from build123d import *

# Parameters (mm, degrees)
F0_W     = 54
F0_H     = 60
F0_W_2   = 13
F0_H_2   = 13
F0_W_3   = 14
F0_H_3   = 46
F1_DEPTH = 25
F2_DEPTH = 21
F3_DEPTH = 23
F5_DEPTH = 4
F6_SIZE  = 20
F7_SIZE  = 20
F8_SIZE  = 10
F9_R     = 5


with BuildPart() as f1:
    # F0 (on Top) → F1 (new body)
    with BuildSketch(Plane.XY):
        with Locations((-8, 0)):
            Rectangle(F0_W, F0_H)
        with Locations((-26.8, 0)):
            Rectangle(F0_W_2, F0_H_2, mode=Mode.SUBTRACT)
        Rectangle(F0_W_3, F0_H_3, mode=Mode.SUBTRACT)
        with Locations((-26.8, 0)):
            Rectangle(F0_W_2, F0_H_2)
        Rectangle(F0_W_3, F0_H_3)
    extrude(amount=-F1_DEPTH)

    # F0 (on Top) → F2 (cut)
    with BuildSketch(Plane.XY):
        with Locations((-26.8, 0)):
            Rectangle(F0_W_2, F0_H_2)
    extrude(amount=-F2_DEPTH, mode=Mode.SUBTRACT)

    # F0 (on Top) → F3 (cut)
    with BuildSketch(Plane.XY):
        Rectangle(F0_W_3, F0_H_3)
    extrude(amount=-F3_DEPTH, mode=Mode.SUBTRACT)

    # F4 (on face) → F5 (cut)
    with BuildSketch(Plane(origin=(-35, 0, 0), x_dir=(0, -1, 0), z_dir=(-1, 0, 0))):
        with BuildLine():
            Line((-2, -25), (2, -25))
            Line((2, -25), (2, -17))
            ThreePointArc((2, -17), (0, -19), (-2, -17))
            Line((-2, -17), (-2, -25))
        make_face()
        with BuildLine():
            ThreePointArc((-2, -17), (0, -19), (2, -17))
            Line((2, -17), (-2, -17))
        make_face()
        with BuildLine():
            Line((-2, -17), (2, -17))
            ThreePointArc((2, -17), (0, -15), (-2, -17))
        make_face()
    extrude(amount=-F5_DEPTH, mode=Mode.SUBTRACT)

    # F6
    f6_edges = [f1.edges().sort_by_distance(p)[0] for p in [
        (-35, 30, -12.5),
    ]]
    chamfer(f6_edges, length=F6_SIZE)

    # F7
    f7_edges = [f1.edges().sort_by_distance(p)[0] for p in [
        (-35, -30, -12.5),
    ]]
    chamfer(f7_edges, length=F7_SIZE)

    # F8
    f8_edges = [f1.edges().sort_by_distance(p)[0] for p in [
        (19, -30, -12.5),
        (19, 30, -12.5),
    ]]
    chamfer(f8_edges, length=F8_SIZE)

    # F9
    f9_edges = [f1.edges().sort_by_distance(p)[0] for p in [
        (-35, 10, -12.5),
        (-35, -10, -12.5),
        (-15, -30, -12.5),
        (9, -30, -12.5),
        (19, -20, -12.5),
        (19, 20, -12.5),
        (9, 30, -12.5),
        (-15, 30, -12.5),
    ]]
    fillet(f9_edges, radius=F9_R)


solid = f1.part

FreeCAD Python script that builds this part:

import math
import FreeCAD as App
import Part
import Sketcher
Q = App.Units.Quantity


def edges_at(feature, points):
    """Names of the edges that pass closest to the given points."""
    edges = feature.Shape.Edges
    near = lambda p: min(range(len(edges)), key=lambda i: edges[i].distToShape(Part.Vertex(*p))[0])
    return sorted({f"Edge{near(p) + 1}" for p in points})


def add_polygon(sketch, points):
    """Adds a closed chain of lines whose ends are joined by coincident constraints."""
    first, n = sketch.GeometryCount, len(points)
    for a, b in zip(points, points[1:] + points[:1]):
        sketch.addGeometry(Part.LineSegment(App.Vector(*a, 0), App.Vector(*b, 0)), False)
    for i in range(n):
        sketch.addConstraint(Sketcher.Constraint("Coincident", first + i, 2, first + (i + 1) % n, 1))

doc = App.newDocument("Part")
params = doc.addObject("Spreadsheet::Sheet", "Params")
for row, (alias, value) in enumerate([
    ("sketch1_width", "54 mm"),
    ("sketch1_height", "60 mm"),
    ("pad1_length", "25 mm"),
    ("sketch2_width", "13 mm"),
    ("pocket1_length", "21 mm"),
    ("sketch3_width", "14 mm"),
    ("sketch3_height", "46 mm"),
    ("pocket2_length", "23 mm"),
    ("sketch4_radius", "2 mm"),
    ("sketch4_height", "8 mm"),
    ("pocket3_length", "4 mm"),
    ("chamfer_size", "20 mm"),
    ("chamfer2_size", "20 mm"),
    ("chamfer3_size", "10 mm"),
    ("fillet_radius", "5 mm"),
], start=1):
    params.set(f"A{row}", alias)
    params.set(f"B{row}", "=" + value)
    params.setAlias(f"B{row}", alias)

body = doc.addObject("PartDesign::Body", "Body")

# Sketch on XY plane
sketch1 = body.newObject("Sketcher::SketchObject", "Sketch")
sketch1.AttachmentSupport = (doc.getObject("XY_Plane"), [""])
sketch1.MapMode = "FlatFace"
add_polygon(sketch1, [(-35, 30), (-35, -30), (19, -30), (19, 30)])  # lines 0-3
sketch1.addConstraint([
    Sketcher.Constraint("Vertical", 0),
    Sketcher.Constraint("Horizontal", 1),
    Sketcher.Constraint("Vertical", 2),
    Sketcher.Constraint("Horizontal", 3),
    Sketcher.Constraint("DistanceX", 1, 1, 1, 2, Q("54 mm")),
    Sketcher.Constraint("DistanceY", 0, 2, 0, 1, Q("60 mm")),
    Sketcher.Constraint("DistanceX", 0, 2, -1, 1, Q("35 mm")),
    Sketcher.Constraint("DistanceY", 0, 2, -1, 1, Q("30 mm")),
])
sketch1.setExpression("Constraints[8]", "Params.sketch1_width")
sketch1.setExpression("Constraints[9]", "Params.sketch1_height")
pad1 = body.newObject("PartDesign::Pad", "Pad")
pad1.Profile = sketch1
pad1.setExpression("Length", "Params.pad1_length")
pad1.Reversed = True

# Sketch on XY plane
sketch2 = body.newObject("Sketcher::SketchObject", "Sketch001")
sketch2.AttachmentSupport = (doc.getObject("XY_Plane"), [""])
sketch2.MapMode = "FlatFace"
add_polygon(sketch2, [(-33, 6), (-33, -6), (-20, -6), (-20, 6)])  # lines 0-3
sketch2.addConstraint([
    Sketcher.Constraint("Vertical", 0),
    Sketcher.Constraint("Horizontal", 1),
    Sketcher.Constraint("Vertical", 2),
    Sketcher.Constraint("Horizontal", 3),
    Sketcher.Constraint("Equal", 3, 0),
    Sketcher.Constraint("DistanceX", 1, 1, 1, 2, Q("13 mm")),
    Sketcher.Constraint("DistanceX", 0, 2, -1, 1, Q("33.3 mm")),
    Sketcher.Constraint("DistanceY", 0, 2, -1, 1, Q("6.5 mm")),
])
sketch2.setExpression("Constraints[9]", "Params.sketch2_width")
pocket1 = body.newObject("PartDesign::Pocket", "Pocket")
pocket1.Profile = sketch2
pocket1.setExpression("Length", "Params.pocket1_length")

# Sketch on XY plane
sketch3 = body.newObject("Sketcher::SketchObject", "Sketch002")
sketch3.AttachmentSupport = (doc.getObject("XY_Plane"), [""])
sketch3.MapMode = "FlatFace"
add_polygon(sketch3, [(-7, 23), (-7, -23), (7, -23), (7, 23)])  # lines 0-3
sketch3.addConstraint([
    Sketcher.Constraint("Vertical", 0),
    Sketcher.Constraint("Horizontal", 1),
    Sketcher.Constraint("Vertical", 2),
    Sketcher.Constraint("Horizontal", 3),
    Sketcher.Constraint("Symmetric", 0, 2, 2, 2, -1, 1),
    Sketcher.Constraint("DistanceX", 1, 1, 1, 2, Q("14 mm")),
    Sketcher.Constraint("DistanceY", 0, 2, 0, 1, Q("46 mm")),
])
sketch3.setExpression("Constraints[9]", "Params.sketch3_width")
sketch3.setExpression("Constraints[10]", "Params.sketch3_height")
pocket2 = body.newObject("PartDesign::Pocket", "Pocket001")
pocket2.Profile = sketch3
pocket2.setExpression("Length", "Params.pocket2_length")

# Sketch on YZ plane
sketch4 = body.newObject("Sketcher::SketchObject", "Sketch003")
sketch4.AttachmentSupport = (doc.getObject("YZ_Plane"), [""])
sketch4.MapMode = "FlatFace"
sketch4.AttachmentOffset = App.Placement(App.Vector(0, 0, -35), App.Rotation())
sketch4.addGeometry([
    Part.LineSegment(App.Vector(2, -25, 0), App.Vector(-2, -25, 0)),
    Part.LineSegment(App.Vector(-2, -25, 0), App.Vector(-2, -17, 0)),
    Part.ArcOfCircle(Part.Circle(App.Vector(0, -17, 0), App.Vector(0, 0, 1), 2), math.radians(0), math.radians(180)),
    Part.LineSegment(App.Vector(2, -17, 0), App.Vector(2, -25, 0)),
], False)
sketch4.addConstraint([
    Sketcher.Constraint("Coincident", 0, 2, 1, 1),
    Sketcher.Constraint("Tangent", 1, 2, 2, 2),
    Sketcher.Constraint("Tangent", 2, 1, 3, 1),
    Sketcher.Constraint("Coincident", 3, 2, 0, 1),
    Sketcher.Constraint("Horizontal", 0),
    Sketcher.Constraint("Vertical", 1),
    Sketcher.Constraint("Vertical", 3),
    Sketcher.Constraint("PointOnObject", 2, 3, -2),
    Sketcher.Constraint("Radius", 2, Q("2 mm")),
    Sketcher.Constraint("DistanceY", 1, 1, 1, 2, Q("8 mm")),
    Sketcher.Constraint("DistanceY", 2, 3, -1, 1, Q("17 mm")),
])
sketch4.setExpression("Constraints[8]", "Params.sketch4_radius")
sketch4.setExpression("Constraints[9]", "Params.sketch4_height")
pocket3 = body.newObject("PartDesign::Pocket", "Pocket002")
pocket3.Profile = sketch4
pocket3.setExpression("Length", "Params.pocket3_length")
pocket3.Reversed = True
doc.recompute()

chamfer = body.newObject("PartDesign::Chamfer", "Chamfer")
chamfer.Base = (pocket3, edges_at(pocket3, [(-35, 30, -12.5)]))
chamfer.setExpression("Size", "Params.chamfer_size")
doc.recompute()

chamfer2 = body.newObject("PartDesign::Chamfer", "Chamfer001")
chamfer2.Base = (chamfer, edges_at(chamfer, [(-35, -30, -12.5)]))
chamfer2.setExpression("Size", "Params.chamfer2_size")
doc.recompute()

chamfer3 = body.newObject("PartDesign::Chamfer", "Chamfer002")
chamfer3.Base = (chamfer2, edges_at(chamfer2, [(19, -30, -12.5), (19, 30, -12.5)]))
chamfer3.setExpression("Size", "Params.chamfer3_size")
doc.recompute()

fillet = body.newObject("PartDesign::Fillet", "Fillet")
fillet.Base = (chamfer3, edges_at(chamfer3, [
    (-35, 10, -12.5),
    (-35, -10, -12.5),
    (-15, -30, -12.5),
    (9, -30, -12.5),
    (19, -20, -12.5),
    (19, 20, -12.5),
    (9, 30, -12.5),
    (-15, 30, -12.5),
]))
fillet.setExpression("Radius", "Params.fillet_radius")

doc.recompute()
